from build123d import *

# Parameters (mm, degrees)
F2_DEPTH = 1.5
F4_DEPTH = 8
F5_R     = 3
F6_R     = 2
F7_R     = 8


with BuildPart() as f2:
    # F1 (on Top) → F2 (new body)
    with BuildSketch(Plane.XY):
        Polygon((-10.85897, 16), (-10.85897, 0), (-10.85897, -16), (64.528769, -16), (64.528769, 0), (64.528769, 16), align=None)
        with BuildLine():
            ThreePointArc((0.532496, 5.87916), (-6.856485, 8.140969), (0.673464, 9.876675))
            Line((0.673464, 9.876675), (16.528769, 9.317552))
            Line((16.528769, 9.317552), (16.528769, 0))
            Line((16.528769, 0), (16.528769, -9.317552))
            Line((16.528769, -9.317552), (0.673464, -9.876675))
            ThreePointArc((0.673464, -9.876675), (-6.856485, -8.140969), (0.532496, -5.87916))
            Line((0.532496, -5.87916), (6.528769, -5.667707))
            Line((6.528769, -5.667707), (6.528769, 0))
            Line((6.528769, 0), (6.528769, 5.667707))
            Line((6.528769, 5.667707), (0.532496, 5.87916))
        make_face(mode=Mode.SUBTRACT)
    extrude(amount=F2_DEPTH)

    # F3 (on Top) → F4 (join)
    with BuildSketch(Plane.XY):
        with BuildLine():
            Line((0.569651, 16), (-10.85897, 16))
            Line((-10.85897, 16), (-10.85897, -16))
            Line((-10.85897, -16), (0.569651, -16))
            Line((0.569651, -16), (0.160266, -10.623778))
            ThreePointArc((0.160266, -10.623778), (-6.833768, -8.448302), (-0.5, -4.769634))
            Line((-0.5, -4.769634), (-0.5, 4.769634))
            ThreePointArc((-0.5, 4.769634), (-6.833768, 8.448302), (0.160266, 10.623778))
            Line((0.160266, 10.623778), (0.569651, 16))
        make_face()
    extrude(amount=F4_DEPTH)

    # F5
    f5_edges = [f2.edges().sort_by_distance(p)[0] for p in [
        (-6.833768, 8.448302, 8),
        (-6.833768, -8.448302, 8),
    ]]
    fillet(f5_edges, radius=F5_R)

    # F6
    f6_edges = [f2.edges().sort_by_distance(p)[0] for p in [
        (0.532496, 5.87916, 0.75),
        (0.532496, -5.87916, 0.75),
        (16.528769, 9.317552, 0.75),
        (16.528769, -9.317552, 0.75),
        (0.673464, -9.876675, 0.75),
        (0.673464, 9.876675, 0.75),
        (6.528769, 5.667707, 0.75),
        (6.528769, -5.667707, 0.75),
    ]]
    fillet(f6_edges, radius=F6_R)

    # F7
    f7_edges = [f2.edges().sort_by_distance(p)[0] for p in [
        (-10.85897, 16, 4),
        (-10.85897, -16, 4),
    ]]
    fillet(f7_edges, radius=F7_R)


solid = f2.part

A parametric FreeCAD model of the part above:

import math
import FreeCAD as App
import Part
import Sketcher

V = App.Vector


def edges_at(feature, points):
    """Names of the edges that pass closest to the given points."""
    edges = feature.Shape.Edges
    near = lambda p: min(range(len(edges)), key=lambda i: edges[i].distToShape(Part.Vertex(*p))[0])
    return sorted({f"Edge{near(p) + 1}" for p in points})

doc = App.newDocument("Part")
params = doc.addObject("Spreadsheet::Sheet", "Params")
for row, (alias, value) in enumerate([
    ("sketch1_radius", "4 mm"),
    ("sketch1_height", "32 mm"),
    ("sketch1_length", "6 mm"),
    ("pad1_length", "1.5 mm"),
    ("sketch2_radius", "4 mm"),
    ("sketch2_height", "32 mm"),
    ("pad2_length", "8 mm"),
    ("fillet_radius", "3 mm"),
    ("fillet2_radius", "2 mm"),
    ("fillet3_radius", "8 mm"),
], start=1):
    params.set(f"A{row}", alias)
    params.set(f"B{row}", "=" + value)
    params.setAlias(f"B{row}", alias)

body = doc.addObject("PartDesign::Body", "Body")

# Sketch on XY plane
sketch1 = doc.addObject("Sketcher::SketchObject", "Sketch")
body.addObject(sketch1)
sketch1.AttachmentSupport = (doc.XY_Plane, [""])
sketch1.MapMode = "FlatFace"
sketch1.addGeometry([
    Part.LineSegment(V(-10.9, 16, 0), V(-10.9, -16, 0)),  # 0
    Part.LineSegment(V(-10.9, -16, 0), V(64.5, -16, 0)),  # 1
    Part.LineSegment(V(64.5, -16, 0), V(64.5, 16, 0)),  # 2
    Part.LineSegment(V(64.5, 16, 0), V(-10.9, 16, 0)),  # 3
    Part.LineSegment(V(6.5, 5.7, 0), V(0.5, 5.9, 0)),  # 4
    Part.ArcOfCircle(Part.Circle(V(-2.9, 8, 0), V(0, 0, 1), 4), math.radians(28), math.radians(328)),  # 5
    Part.LineSegment(V(0.7, 9.9, 0), V(16.5, 9.3, 0)),  # 6
    Part.LineSegment(V(16.5, 9.3, 0), V(16.5, -9.3, 0)),  # 7
    Part.LineSegment(V(16.5, -9.3, 0), V(0.7, -9.9, 0)),  # 8
    Part.ArcOfCircle(Part.Circle(V(-2.9, -8, 0), V(0, 0, 1), 4), math.radians(32), math.radians(332)),  # 9
    Part.LineSegment(V(0.5, -5.9, 0), V(6.5, -5.7, 0)),  # 10
    Part.LineSegment(V(6.5, -5.7, 0), V(6.5, 5.7, 0)),  # 11
], False)
sketch1.addConstraint([
    Sketcher.Constraint("Coincident", 0, 2, 1, 1),
    Sketcher.Constraint("Coincident", 1, 2, 2, 1),
    Sketcher.Constraint("Coincident", 2, 2, 3, 1),
    Sketcher.Constraint("Coincident", 3, 2, 0, 1),
    Sketcher.Constraint("Coincident", 4, 2, 5, 2),
    Sketcher.Constraint("Coincident", 5, 1, 6, 1),
    Sketcher.Constraint("Coincident", 6, 2, 7, 1),
    Sketcher.Constraint("Coincident", 7, 2, 8, 1),
    Sketcher.Constraint("Coincident", 8, 2, 9, 2),
    Sketcher.Constraint("Coincident", 9, 1, 10, 1),
    Sketcher.Constraint("Coincident", 10, 2, 11, 1),
    Sketcher.Constraint("Coincident", 11, 2, 4, 1),
    Sketcher.Constraint("Vertical", 0),
    Sketcher.Constraint("Horizontal", 1),
    Sketcher.Constraint("Vertical", 2),
    Sketcher.Constraint("Horizontal", 3),
    Sketcher.Constraint("Vertical", 7),
    Sketcher.Constraint("Vertical", 11),
    Sketcher.Constraint("Equal", 5, 9),
    Sketcher.Constraint("Symmetric", 5, 3, 9, 3, -1),
    Sketcher.Constraint("Parallel", 4, 6),
    Sketcher.Constraint("Parallel", 8, 10),
    Sketcher.Constraint("Vertical", 5, 1, 8, 2),
    Sketcher.Constraint("Vertical", 4, 2, 9, 1),
    Sketcher.Constraint("Equal", 6, 8),
    Sketcher.Constraint("Radius", 5, 4.0),
    Sketcher.Constraint("DistanceY", 0, 2, 0, 1, 32.0),
    Sketcher.Constraint("Distance", 4, 6.0),
    Sketcher.Constraint("DistanceY", -1, 1, 5, 3, 7.999999),
    Sketcher.Constraint("DistanceY", 0, 2, -1, 1, 16.0),
    Sketcher.Constraint("DistanceX", 0, 2, 9, 3, 8.0),
    Sketcher.Constraint("DistanceX", 10, 2, 7, 2, 10.0),
    Sketcher.Constraint("DistanceX", 1, 1, 1, 2, 75.387739),
    Sketcher.Constraint("Distance", 6, 15.86516),
    Sketcher.Constraint("DistanceY", 7, 2, 7, 1, 18.635104),
    Sketcher.Constraint("DistanceY", 11, 1, 11, 2, 11.335414),
    Sketcher.Constraint("DistanceX", 5, 3, -1, 1, 2.85897),
])
sketch1.setExpression("Constraints[25]", "Params.sketch1_radius")
sketch1.setExpression("Constraints[26]", "Params.sketch1_height")
sketch1.setExpression("Constraints[27]", "Params.sketch1_length")
pad1 = doc.addObject("PartDesign::Pad", "Pad")
body.addObject(pad1)
pad1.Profile = sketch1
pad1.setExpression("Length", "Params.pad1_length")

# Sketch on XY plane
sketch2 = doc.addObject("Sketcher::SketchObject", "Sketch001")
body.addObject(sketch2)
sketch2.AttachmentSupport = (doc.XY_Plane, [""])
sketch2.MapMode = "FlatFace"
sketch2.addGeometry([
    Part.LineSegment(V(0.6, 16, 0), V(-10.9, 16, 0)),  # 0
    Part.LineSegment(V(-10.9, 16, 0), V(-10.9, -16, 0)),  # 1
    Part.LineSegment(V(-10.9, -16, 0), V(0.6, -16, 0)),  # 2
    Part.LineSegment(V(0.6, -16, 0), V(0.2, -10.6, 0)),  # 3
    Part.ArcOfCircle(Part.Circle(V(-2.9, -8, 0), V(0, 0, 1), 4), math.radians(54), math.radians(319)),  # 4
    Part.LineSegment(V(-0.5, -4.8, 0), V(-0.5, 4.8, 0)),  # 5
    Part.ArcOfCircle(Part.Circle(V(-2.9, 8, 0), V(0, 0, 1), 4), math.radians(41), math.radians(306)),  # 6
    Part.LineSegment(V(0.2, 10.6, 0), V(0.6, 16, 0)),  # 7
], False)
sketch2.addConstraint([
    Sketcher.Constraint("Coincident", 0, 2, 1, 1),
    Sketcher.Constraint("Coincident", 1, 2, 2, 1),
    Sketcher.Constraint("Coincident", 2, 2, 3, 1),
    Sketcher.Constraint("Coincident", 3, 2, 4, 2),
    Sketcher.Constraint("Coincident", 4, 1, 5, 1),
    Sketcher.Constraint("Coincident", 5, 2, 6, 2),
    Sketcher.Constraint("Coincident", 6, 1, 7, 1),
    Sketcher.Constraint("Coincident", 7, 2, 0, 1),
    Sketcher.Constraint("Horizontal", 0),
    Sketcher.Constraint("Vertical", 1),
    Sketcher.Constraint("Horizontal", 2),
    Sketcher.Constraint("Vertical", 5),
    Sketcher.Constraint("Equal", 4, 6),
    Sketcher.Constraint("Symmetric", 4, 3, 6, 3, -1),
    Sketcher.Constraint("Symmetric", 2, 2, 7, 2, -1),
    Sketcher.Constraint("Vertical", 3, 2, 6, 1),
    Sketcher.Constraint("Radius", 4, 4.0),
    Sketcher.Constraint("DistanceY", 1, 2, 1, 1, 32.0),
    Sketcher.Constraint("DistanceY", 4, 3, -1, 1, 7.999999),
    Sketcher.Constraint("DistanceX", 0, 2, 6, 3, 8.0),
    Sketcher.Constraint("DistanceX", 4, 1, -1, 1, 0.5),
    Sketcher.Constraint("DistanceX", 0, 2, 0, 1, 11.428621),
    Sketcher.Constraint("DistanceY", 5, 1, 5, 2, 9.539268),
    Sketcher.Constraint("DistanceY", -1, 1, 6, 1, 10.623778),
])
sketch2.setExpression("Constraints[16]", "Params.sketch2_radius")
sketch2.setExpression("Constraints[17]", "Params.sketch2_height")
pad2 = doc.addObject("PartDesign::Pad", "Pad001")
body.addObject(pad2)
pad2.Profile = sketch2
pad2.setExpression("Length", "Params.pad2_length")
doc.recompute()

fillet = doc.addObject("PartDesign::Fillet", "Fillet")
body.addObject(fillet)
fillet.Base = (pad2, edges_at(pad2, [(-6.834, 8.448, 8), (-6.834, -8.448, 8)]))
fillet.setExpression("Radius", "Params.fillet_radius")
doc.recompute()

fillet2 = doc.addObject("PartDesign::Fillet", "Fillet001")
body.addObject(fillet2)
fillet2.Base = (fillet, edges_at(fillet, [
    (0.532, 5.879, 0.75),
    (0.532, -5.879, 0.75),
    (16.529, 9.318, 0.75),
    (16.529, -9.318, 0.75),
    (0.673, -9.877, 0.75),
    (0.673, 9.877, 0.75),
    (6.529, 5.668, 0.75),
    (6.529, -5.668, 0.75),
]))
fillet2.setExpression("Radius", "Params.fillet2_radius")
doc.recompute()

fillet3 = doc.addObject("PartDesign::Fillet", "Fillet002")
body.addObject(fillet3)
fillet3.Base = (fillet2, edges_at(fillet2, [(-10.859, 16, 4), (-10.859, -16, 4)]))
fillet3.setExpression("Radius", "Params.fillet3_radius")

doc.recompute()
